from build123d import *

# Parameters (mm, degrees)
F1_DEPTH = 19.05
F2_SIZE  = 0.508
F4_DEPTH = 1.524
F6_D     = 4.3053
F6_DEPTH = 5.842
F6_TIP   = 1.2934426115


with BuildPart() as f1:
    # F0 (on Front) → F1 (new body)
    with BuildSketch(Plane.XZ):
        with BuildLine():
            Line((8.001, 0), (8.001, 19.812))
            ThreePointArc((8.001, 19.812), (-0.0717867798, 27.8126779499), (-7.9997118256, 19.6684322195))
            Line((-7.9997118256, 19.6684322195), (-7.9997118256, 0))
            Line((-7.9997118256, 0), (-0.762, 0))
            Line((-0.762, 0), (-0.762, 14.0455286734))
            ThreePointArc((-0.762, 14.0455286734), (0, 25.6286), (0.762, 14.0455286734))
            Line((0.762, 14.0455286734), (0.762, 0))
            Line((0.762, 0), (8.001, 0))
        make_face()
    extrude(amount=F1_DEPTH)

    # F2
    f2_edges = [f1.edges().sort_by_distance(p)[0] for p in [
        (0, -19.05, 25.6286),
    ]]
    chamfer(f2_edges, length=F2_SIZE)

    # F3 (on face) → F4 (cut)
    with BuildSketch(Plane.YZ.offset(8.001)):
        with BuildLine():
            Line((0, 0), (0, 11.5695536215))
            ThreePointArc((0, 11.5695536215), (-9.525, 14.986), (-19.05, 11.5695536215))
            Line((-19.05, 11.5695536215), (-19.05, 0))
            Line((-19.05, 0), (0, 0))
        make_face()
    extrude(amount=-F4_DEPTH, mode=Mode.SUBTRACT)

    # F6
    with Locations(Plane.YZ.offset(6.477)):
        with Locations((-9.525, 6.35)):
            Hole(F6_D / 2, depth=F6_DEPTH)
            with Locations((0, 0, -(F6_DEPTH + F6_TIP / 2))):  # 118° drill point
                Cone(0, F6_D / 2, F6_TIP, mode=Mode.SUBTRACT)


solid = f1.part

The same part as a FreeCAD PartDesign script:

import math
import FreeCAD as App
import Part
import Sketcher

V = App.Vector
Q = App.Units.Quantity


def edges_at(feature, points):
    """Names of the edges that pass closest to the given points."""
    edges = feature.Shape.Edges
    near = lambda p: min(range(len(edges)), key=lambda i: edges[i].distToShape(Part.Vertex(*p))[0])
    return sorted({f"Edge{near(p) + 1}" for p in points})

doc = App.newDocument("Part")
body = doc.addObject("PartDesign::Body", "Body")

# Sketch on XZ plane
sketch1 = body.newObject("Sketcher::SketchObject", "Sketch")
sketch1.AttachmentSupport = (doc.getObject("XZ_Plane"), [""])
sketch1.MapMode = "FlatFace"
sketch1.addGeometry([
    Part.LineSegment(V(8, 0, 0), V(8, 19.8, 0)),  # 0
    Part.ArcOfCircle(Part.Circle(V(0, 19.8, 0), V(0, 0, 1), 8), math.radians(0), math.radians(181)),  # 1
    Part.LineSegment(V(-8, 19.7, 0), V(-8, 0, 0)),  # 2
    Part.LineSegment(V(-8, 0, 0), V(-0.8, 0, 0)),  # 3
    Part.LineSegment(V(-0.8, 0, 0), V(-0.8, 14, 0)),  # 4
    Part.ArcOfCircle(Part.Circle(V(0, 19.8, 0), V(0, 0, 1), 5.8), math.radians(-82), math.radians(262)),  # 5
    Part.LineSegment(V(0.8, 14, 0), V(0.8, 0, 0)),  # 6
    Part.LineSegment(V(0.8, 0, 0), V(8, 0, 0)),  # 7
], False)
sketch1.addConstraint([
    Sketcher.Constraint("Tangent", 0, 2, 1, 1),
    Sketcher.Constraint("Coincident", 1, 2, 2, 1),
    Sketcher.Constraint("Coincident", 2, 2, 3, 1),
    Sketcher.Constraint("Coincident", 3, 2, 4, 1),
    Sketcher.Constraint("Coincident", 4, 2, 5, 2),
    Sketcher.Constraint("Coincident", 5, 1, 6, 1),
    Sketcher.Constraint("Coincident", 6, 2, 7, 1),
    Sketcher.Constraint("Coincident", 7, 2, 0, 1),
    Sketcher.Constraint("Vertical", 0),
    Sketcher.Constraint("Vertical", 2),
    Sketcher.Constraint("Horizontal", 3),
    Sketcher.Constraint("Vertical", 4),
    Sketcher.Constraint("Vertical", 6),
    Sketcher.Constraint("Horizontal", 7),
    Sketcher.Constraint("Coincident", 5, 3, 1, 3),
    Sketcher.Constraint("Symmetric", 3, 2, 6, 2, -1, 1),
    Sketcher.Constraint("PointOnObject", 1, 3, -2),
    Sketcher.Constraint("PointOnObject", 2, 2, -1),
    Sketcher.Constraint("Radius", 1, Q("0.315 in")),
    Sketcher.Constraint("Radius", 5, Q("0.229 in")),
    Sketcher.Constraint("DistanceY", 0, 1, 0, 2, Q("0.78 in")),
    Sketcher.Constraint("DistanceX", 7, 1, 7, 2, Q("0.285 in")),
    Sketcher.Constraint("DistanceX", 3, 1, 3, 2, Q("7.237712 mm")),
])
pad1 = body.newObject("PartDesign::Pad", "Pad")
pad1.Profile = sketch1
pad1.Length = Q("0.75 in")
doc.recompute()

chamfer = body.newObject("PartDesign::Chamfer", "Chamfer")
chamfer.Base = (pad1, edges_at(pad1, [(0, -19.05, 25.629)]))
chamfer.Size = Q("0.02 in")

# Sketch on YZ plane
sketch2 = body.newObject("Sketcher::SketchObject", "Sketch001")
sketch2.AttachmentSupport = (doc.getObject("YZ_Plane"), [""])
sketch2.MapMode = "FlatFace"
sketch2.AttachmentOffset = App.Placement(V(0, 0, 0.315 * 25.4), App.Rotation())
sketch2.addGeometry([
    Part.LineSegment(V(0, 0, 0), V(0, 12, 0)),
    Part.ArcOfCircle(Part.Circle(V(-10, 0, 0), V(0, 0, 1), 15), math.radians(51), math.radians(129)),
    Part.LineSegment(V(-19, 12, 0), V(-19, 0, 0)),
    Part.LineSegment(V(-19, 0, 0), V(0, 0, 0)),
], False)
sketch2.addConstraint([
    Sketcher.Constraint("Coincident", 0, 2, 1, 1),
    Sketcher.Constraint("Coincident", 1, 2, 2, 1),
    Sketcher.Constraint("Coincident", 2, 2, 3, 1),
    Sketcher.Constraint("Coincident", 3, 2, 0, 1),
    Sketcher.Constraint("Vertical", 0),
    Sketcher.Constraint("Vertical", 2),
    Sketcher.Constraint("Horizontal", 3),
    Sketcher.Constraint("Coincident", 3, 2, -1, 1),
    Sketcher.Constraint("PointOnObject", 1, 3, -1),
    Sketcher.Constraint("Horizontal", 0, 2, 1, 2),
    Sketcher.Constraint("Radius", 1, Q("0.59 in")),
    Sketcher.Constraint("DistanceX", 3, 1, 3, 2, Q("0.75 in")),
])
pocket1 = body.newObject("PartDesign::Pocket", "Pocket")
pocket1.Profile = sketch2
pocket1.Length = Q("0.06 in")

# Sketch on YZ plane
sketch3 = body.newObject("Sketcher::SketchObject", "Sketch002")
sketch3.AttachmentSupport = (doc.getObject("YZ_Plane"), [""])
sketch3.MapMode = "FlatFace"
sketch3.AttachmentOffset = App.Placement(V(0, 0, 0.255 * 25.4), App.Rotation())
sketch3.addGeometry(Part.Circle(V(-9.5, 6.3, 0), V(0, 0, 1), 2.2), False)
sketch3.addConstraint([
    Sketcher.Constraint("Diameter", 0, Q("0.1695 in")),
    Sketcher.Constraint("DistanceY", -1, 1, 0, 3, Q("0.25 in")),
    Sketcher.Constraint("DistanceX", 0, 3, -1, 1, Q("0.375 in")),
])
doc.recompute()
hole = body.newObject("PartDesign::Hole", "Hole")
hole.Profile = sketch3
hole.ThreadType = "None"
hole.Diameter = Q("0.1695 in")
hole.DepthType = "Dimension"
hole.Depth = Q("0.23 in")
hole.DrillPoint = "Angled"
hole.DrillPointAngle = 118

doc.recompute()
